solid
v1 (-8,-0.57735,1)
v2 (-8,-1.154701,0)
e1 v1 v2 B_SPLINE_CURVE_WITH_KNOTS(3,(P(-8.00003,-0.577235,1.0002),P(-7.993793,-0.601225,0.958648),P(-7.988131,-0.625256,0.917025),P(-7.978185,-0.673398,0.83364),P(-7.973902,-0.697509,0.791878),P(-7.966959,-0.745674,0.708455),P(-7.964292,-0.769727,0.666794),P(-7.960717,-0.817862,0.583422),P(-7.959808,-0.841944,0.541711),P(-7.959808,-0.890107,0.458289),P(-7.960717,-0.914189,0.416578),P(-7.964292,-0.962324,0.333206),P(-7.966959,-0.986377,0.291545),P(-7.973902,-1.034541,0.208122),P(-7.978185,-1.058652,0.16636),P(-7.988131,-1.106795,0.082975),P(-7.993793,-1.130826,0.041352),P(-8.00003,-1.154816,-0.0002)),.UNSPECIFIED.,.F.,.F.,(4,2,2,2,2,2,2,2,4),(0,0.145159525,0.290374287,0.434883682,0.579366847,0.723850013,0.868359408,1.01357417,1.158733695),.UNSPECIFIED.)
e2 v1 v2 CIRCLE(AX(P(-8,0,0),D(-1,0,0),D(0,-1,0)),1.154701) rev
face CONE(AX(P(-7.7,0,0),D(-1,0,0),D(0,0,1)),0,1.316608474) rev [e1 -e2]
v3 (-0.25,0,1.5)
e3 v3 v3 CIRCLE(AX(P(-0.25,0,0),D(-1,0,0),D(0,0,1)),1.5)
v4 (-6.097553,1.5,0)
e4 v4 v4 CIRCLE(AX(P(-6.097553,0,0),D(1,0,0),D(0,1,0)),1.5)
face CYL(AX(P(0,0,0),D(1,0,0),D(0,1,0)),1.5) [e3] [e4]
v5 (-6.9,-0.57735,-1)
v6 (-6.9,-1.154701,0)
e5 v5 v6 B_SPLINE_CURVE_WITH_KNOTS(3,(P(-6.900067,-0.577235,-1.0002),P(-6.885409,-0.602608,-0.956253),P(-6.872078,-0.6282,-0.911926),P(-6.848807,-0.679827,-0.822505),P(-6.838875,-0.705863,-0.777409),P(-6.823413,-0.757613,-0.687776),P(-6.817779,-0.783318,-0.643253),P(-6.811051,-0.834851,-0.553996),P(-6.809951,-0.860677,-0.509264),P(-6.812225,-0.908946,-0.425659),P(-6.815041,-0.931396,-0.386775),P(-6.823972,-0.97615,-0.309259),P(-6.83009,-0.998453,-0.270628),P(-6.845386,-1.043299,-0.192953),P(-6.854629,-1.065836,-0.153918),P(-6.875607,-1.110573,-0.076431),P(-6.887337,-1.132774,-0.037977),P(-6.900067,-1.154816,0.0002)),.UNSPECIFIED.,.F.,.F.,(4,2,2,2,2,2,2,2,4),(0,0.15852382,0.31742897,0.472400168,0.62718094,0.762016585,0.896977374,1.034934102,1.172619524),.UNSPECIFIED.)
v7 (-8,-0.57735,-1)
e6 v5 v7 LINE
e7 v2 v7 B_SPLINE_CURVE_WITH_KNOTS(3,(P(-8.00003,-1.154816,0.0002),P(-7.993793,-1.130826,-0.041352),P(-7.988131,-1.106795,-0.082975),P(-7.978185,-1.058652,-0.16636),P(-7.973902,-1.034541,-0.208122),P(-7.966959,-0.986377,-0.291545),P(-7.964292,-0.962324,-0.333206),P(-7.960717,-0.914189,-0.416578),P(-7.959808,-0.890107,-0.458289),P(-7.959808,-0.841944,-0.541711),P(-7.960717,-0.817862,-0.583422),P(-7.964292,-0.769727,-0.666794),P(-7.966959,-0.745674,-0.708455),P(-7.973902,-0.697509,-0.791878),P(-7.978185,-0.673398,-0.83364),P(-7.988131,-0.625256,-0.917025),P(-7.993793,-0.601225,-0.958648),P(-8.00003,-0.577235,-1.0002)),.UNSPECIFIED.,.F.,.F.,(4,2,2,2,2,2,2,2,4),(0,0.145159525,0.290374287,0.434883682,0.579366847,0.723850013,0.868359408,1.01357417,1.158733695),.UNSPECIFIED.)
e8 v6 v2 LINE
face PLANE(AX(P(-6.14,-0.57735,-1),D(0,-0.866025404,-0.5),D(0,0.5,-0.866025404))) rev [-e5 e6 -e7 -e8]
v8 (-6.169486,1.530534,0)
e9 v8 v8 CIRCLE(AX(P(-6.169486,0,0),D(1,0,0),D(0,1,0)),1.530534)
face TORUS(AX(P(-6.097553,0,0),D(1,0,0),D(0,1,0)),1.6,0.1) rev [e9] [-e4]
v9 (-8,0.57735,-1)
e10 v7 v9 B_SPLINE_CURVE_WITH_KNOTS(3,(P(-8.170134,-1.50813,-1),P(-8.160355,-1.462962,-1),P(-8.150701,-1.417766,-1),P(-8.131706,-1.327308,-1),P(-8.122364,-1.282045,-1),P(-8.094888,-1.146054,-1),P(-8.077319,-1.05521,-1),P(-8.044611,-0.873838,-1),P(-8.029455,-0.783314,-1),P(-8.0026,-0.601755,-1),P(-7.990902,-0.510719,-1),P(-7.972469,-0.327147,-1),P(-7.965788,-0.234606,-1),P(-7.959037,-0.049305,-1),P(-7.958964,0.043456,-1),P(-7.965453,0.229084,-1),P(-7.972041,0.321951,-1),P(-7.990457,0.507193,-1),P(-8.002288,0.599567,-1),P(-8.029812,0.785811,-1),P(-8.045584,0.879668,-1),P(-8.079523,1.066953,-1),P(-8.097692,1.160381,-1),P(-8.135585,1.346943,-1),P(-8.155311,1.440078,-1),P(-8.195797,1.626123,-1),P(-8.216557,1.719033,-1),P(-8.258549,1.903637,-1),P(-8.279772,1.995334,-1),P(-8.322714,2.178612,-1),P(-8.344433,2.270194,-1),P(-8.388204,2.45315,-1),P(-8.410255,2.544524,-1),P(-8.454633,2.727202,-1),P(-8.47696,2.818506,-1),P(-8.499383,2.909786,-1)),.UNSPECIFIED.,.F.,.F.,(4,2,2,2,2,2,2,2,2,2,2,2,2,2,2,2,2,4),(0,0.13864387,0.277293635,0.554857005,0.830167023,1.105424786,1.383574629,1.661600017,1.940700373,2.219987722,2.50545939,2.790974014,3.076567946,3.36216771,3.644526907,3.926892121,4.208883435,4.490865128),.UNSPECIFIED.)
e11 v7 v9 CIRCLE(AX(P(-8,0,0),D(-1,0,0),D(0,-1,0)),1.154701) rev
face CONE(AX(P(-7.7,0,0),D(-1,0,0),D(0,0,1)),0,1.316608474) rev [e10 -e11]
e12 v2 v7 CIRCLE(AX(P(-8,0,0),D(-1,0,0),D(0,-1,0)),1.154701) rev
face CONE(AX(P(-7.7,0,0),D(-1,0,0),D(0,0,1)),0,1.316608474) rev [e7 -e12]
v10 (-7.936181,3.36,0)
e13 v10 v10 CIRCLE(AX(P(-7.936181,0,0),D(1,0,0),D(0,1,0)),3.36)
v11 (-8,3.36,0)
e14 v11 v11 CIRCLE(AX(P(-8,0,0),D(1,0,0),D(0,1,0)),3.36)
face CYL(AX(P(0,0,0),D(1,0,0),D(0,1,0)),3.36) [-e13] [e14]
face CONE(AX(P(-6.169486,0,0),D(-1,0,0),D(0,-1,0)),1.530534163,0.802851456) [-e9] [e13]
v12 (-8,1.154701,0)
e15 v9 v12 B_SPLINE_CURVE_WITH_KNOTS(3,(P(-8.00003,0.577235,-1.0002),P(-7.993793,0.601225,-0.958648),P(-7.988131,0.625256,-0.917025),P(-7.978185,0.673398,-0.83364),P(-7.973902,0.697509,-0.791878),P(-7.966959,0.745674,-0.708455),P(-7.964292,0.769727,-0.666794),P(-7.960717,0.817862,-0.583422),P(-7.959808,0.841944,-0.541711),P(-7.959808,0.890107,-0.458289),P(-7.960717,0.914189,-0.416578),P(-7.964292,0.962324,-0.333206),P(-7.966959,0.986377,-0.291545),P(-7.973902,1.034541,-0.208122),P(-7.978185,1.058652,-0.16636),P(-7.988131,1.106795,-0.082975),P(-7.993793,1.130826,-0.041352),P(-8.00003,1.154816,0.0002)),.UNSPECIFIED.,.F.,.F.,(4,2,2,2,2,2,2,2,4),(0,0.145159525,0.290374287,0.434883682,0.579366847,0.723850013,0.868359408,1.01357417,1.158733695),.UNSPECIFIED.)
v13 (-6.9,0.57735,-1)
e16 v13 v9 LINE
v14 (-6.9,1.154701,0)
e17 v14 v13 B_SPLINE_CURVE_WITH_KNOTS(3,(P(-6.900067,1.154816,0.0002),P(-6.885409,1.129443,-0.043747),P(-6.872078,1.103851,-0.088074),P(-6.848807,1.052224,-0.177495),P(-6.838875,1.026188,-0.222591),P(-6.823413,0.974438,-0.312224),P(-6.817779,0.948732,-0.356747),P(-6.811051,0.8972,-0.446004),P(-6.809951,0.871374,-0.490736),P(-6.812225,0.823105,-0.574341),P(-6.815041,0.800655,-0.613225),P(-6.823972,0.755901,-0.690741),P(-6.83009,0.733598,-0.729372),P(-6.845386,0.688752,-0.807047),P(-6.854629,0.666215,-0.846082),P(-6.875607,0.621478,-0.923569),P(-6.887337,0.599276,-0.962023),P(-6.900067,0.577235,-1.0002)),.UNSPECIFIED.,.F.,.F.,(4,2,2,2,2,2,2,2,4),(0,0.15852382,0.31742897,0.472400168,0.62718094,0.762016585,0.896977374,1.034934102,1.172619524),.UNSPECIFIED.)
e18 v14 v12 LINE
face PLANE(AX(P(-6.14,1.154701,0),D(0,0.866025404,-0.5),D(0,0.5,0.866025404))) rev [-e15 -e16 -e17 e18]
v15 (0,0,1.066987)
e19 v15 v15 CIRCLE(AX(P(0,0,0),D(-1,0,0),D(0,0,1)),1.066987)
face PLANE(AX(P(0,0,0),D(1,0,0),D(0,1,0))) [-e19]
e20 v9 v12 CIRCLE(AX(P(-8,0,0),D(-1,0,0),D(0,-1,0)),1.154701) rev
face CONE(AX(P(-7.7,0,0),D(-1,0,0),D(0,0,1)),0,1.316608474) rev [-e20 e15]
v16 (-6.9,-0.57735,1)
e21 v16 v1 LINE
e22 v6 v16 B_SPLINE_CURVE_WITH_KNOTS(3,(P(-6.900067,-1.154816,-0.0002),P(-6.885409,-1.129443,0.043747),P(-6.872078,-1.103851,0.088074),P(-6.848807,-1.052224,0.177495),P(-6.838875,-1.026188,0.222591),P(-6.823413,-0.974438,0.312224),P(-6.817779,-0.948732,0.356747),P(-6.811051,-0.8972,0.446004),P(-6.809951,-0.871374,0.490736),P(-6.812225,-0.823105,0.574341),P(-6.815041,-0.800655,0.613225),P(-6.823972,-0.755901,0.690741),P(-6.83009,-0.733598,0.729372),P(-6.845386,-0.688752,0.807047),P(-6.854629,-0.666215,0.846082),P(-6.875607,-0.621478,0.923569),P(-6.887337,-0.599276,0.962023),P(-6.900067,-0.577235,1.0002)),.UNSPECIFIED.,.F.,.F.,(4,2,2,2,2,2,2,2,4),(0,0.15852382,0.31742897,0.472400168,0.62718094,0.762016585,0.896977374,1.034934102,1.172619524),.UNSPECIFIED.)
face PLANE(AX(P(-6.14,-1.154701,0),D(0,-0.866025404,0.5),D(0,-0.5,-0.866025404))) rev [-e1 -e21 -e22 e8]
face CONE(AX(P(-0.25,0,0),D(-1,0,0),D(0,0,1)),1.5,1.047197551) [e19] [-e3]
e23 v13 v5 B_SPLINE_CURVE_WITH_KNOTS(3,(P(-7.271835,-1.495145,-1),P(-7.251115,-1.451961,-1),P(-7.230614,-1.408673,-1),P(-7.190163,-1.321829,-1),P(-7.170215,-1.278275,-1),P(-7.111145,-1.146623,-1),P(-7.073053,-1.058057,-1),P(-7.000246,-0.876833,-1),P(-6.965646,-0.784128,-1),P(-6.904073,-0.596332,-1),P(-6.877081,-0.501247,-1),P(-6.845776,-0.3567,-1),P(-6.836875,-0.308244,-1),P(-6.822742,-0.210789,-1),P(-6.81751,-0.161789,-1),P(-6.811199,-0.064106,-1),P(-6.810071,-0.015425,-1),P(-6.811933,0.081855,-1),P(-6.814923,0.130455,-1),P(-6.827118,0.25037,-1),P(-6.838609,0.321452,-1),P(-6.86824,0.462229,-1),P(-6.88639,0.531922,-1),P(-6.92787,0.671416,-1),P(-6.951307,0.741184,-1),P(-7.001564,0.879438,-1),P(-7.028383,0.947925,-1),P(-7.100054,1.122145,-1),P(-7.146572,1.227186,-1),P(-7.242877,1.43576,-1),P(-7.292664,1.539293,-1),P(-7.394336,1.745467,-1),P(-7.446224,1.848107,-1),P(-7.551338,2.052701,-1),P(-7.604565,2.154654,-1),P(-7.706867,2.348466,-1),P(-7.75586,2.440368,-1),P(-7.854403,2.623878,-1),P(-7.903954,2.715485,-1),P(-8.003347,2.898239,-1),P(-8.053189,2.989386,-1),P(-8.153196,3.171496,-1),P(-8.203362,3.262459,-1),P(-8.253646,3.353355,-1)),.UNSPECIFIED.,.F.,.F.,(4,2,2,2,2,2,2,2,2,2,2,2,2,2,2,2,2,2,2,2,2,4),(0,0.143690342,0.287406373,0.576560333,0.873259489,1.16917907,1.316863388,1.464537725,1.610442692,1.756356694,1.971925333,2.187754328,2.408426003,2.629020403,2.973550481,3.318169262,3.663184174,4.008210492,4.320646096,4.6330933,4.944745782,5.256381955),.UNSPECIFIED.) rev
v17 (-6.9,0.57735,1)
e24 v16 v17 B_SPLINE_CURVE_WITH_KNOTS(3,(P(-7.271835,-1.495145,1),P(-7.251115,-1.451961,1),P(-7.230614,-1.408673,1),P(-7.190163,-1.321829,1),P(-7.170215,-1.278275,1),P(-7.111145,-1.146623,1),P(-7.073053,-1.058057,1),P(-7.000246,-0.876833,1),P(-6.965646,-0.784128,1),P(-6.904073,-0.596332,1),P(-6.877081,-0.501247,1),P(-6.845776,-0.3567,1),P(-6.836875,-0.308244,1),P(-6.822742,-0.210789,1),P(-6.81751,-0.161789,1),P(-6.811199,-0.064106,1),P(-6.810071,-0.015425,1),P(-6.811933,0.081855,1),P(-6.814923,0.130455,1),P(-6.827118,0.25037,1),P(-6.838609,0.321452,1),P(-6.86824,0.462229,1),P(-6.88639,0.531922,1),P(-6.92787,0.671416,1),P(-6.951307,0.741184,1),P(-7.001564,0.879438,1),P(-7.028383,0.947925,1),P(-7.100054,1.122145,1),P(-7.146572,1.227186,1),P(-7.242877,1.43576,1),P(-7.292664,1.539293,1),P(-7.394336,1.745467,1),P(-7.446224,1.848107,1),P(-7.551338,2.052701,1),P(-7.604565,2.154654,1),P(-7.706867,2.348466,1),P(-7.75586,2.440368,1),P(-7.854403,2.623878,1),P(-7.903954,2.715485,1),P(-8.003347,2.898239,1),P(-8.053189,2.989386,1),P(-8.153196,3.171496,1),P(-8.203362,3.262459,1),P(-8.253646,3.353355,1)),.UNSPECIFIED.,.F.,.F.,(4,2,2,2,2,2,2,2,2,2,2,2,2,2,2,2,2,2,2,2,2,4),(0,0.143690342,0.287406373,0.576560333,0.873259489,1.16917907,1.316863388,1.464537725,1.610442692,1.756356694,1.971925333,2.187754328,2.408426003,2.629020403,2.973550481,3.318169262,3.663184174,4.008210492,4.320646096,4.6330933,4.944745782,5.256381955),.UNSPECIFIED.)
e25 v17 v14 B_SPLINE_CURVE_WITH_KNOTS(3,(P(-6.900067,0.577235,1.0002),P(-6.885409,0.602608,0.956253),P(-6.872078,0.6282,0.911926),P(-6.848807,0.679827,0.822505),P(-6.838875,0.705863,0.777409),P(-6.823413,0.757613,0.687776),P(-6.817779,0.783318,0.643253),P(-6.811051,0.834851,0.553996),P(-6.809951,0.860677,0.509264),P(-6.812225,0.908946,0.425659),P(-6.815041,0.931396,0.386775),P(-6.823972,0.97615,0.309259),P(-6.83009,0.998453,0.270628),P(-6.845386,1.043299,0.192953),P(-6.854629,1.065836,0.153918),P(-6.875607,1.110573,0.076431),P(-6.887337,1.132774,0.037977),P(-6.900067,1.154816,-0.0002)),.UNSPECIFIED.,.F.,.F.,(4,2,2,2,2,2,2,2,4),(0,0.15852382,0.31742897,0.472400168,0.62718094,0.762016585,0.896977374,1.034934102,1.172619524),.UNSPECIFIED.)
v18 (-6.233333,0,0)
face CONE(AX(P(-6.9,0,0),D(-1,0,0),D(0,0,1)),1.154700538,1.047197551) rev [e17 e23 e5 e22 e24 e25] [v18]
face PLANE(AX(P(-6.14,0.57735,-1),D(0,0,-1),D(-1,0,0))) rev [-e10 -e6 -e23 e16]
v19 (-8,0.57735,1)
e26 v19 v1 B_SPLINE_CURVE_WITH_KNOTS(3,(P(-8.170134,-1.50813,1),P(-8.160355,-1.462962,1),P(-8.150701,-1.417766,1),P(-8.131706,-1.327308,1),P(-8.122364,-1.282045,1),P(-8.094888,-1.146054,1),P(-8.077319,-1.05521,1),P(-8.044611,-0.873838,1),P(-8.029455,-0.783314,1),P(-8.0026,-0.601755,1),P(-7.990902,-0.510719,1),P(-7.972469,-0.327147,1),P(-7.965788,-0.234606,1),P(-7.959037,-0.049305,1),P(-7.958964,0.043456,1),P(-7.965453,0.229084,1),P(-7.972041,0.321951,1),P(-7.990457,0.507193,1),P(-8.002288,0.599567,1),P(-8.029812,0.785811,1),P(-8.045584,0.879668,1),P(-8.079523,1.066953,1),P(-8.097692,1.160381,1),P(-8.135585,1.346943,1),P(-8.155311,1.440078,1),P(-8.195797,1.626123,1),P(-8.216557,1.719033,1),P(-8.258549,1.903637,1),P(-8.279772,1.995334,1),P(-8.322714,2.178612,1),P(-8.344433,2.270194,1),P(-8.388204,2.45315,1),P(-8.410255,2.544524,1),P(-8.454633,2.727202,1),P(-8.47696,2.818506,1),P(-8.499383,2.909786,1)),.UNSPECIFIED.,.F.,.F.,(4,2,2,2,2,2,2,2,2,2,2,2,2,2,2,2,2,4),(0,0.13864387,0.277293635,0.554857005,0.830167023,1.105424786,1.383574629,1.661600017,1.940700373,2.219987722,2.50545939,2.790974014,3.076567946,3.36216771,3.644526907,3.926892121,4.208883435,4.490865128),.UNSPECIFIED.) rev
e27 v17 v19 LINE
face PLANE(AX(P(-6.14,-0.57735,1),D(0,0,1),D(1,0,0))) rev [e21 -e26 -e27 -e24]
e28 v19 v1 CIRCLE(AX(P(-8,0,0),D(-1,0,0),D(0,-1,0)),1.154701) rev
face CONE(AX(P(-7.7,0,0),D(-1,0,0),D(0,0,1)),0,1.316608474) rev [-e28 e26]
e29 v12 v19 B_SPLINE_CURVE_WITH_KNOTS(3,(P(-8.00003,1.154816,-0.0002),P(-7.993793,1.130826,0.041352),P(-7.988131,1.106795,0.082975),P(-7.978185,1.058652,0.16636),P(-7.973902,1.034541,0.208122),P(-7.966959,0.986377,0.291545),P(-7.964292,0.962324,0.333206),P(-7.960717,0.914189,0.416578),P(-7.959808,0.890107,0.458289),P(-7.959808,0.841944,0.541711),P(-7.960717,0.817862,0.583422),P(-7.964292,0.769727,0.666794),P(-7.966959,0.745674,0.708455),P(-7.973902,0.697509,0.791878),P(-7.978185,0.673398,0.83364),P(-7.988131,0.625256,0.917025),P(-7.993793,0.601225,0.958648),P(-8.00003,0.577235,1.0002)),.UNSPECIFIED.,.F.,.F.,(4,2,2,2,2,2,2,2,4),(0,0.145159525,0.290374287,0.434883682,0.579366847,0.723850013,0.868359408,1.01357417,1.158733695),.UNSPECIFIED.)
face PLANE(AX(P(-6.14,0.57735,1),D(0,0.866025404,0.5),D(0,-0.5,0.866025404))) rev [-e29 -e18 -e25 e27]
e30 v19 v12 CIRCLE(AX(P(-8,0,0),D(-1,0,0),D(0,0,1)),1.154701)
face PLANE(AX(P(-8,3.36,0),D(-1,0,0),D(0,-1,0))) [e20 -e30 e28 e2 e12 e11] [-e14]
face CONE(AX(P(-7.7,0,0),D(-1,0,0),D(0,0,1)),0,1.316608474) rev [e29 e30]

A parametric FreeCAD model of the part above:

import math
import FreeCAD as App
import Part
import Sketcher
Q = App.Units.Quantity


def add_polygon(sketch, points):
    """Adds a closed chain of lines whose ends are joined by coincident constraints."""
    first, n = sketch.GeometryCount, len(points)
    for a, b in zip(points, points[1:] + points[:1]):
        sketch.addGeometry(Part.LineSegment(App.Vector(*a, 0), App.Vector(*b, 0)), False)
    for i in range(n):
        sketch.addConstraint(Sketcher.Constraint("Coincident", first + i, 2, first + (i + 1) % n, 1))

doc = App.newDocument("Part")
body = doc.addObject("PartDesign::Body", "Body")

sketch1 = body.newObject("Sketcher::SketchObject", "Sketch")
sketch1.AttachmentSupport = (doc.getObject("XY_Plane"), [""])
sketch1.MapMode = "FlatFace"
sketch1.addGeometry([
    Part.LineSegment(App.Vector(0, 1.5, 0), App.Vector(-6.1, 1.5, 0)),
    Part.ArcOfCircle(Part.Circle(App.Vector(-6.1, 1.6, 0), App.Vector(0, 0, 1), 0.1), math.radians(-136), math.radians(-90)),
    Part.LineSegment(App.Vector(-6.17, 1.53, 0), App.Vector(-7.94, 3.36, 0)),
    Part.LineSegment(App.Vector(-7.94, 3.36, 0), App.Vector(-8, 3.36, 0)),
    Part.LineSegment(App.Vector(-8, 3.36, 0), App.Vector(-8, 0, 0)),
    Part.LineSegment(App.Vector(-8, 0, 0), App.Vector(0, 0, 0)),
    Part.LineSegment(App.Vector(0, 0, 0), App.Vector(0, 1.5, 0)),
], False)
sketch1.addConstraint([
    Sketcher.Constraint("Tangent", 0, 2, 1, 2),
    Sketcher.Constraint("Tangent", 1, 1, 2, 1),
    Sketcher.Constraint("Coincident", 2, 2, 3, 1),
    Sketcher.Constraint("Coincident", 3, 2, 4, 1),
    Sketcher.Constraint("Coincident", 4, 2, 5, 1),
    Sketcher.Constraint("Coincident", 5, 2, 6, 1),
    Sketcher.Constraint("Coincident", 6, 2, 0, 1),
    Sketcher.Constraint("Horizontal", 0),
    Sketcher.Constraint("Horizontal", 3),
    Sketcher.Constraint("Vertical", 4),
    Sketcher.Constraint("Horizontal", 5),
    Sketcher.Constraint("Vertical", 6),
    Sketcher.Constraint("Coincident", 5, 2, -1, 1),
    Sketcher.Constraint("Radius", 1, 0.1),
    Sketcher.Constraint("DistanceX", 5, 1, 5, 2, 8.0),
    Sketcher.Constraint("Angle", 2, Q("134 deg")),
    Sketcher.Constraint("DistanceY", 6, 1, 6, 2, 1.5),
    Sketcher.Constraint("DistanceY", 4, 2, 4, 1, 3.36),
    Sketcher.Constraint("DistanceX", 3, 2, 3, 1, 0.063819),
])
revolution = body.newObject("PartDesign::Revolution", "Revolution")
revolution.Profile = sketch1
revolution.ReferenceAxis = (sketch1, ["H_Axis"])
revolution.Angle = 360

sketch2 = body.newObject("Sketcher::SketchObject", "Sketch001")
sketch2.AttachmentSupport = (doc.getObject("YZ_Plane"), [""])
sketch2.MapMode = "FlatFace"
sketch2.AttachmentOffset = App.Placement(App.Vector(0, 0, -8), App.Rotation())
add_polygon(sketch2, [(1.2, 0), (0.6, -1), (-0.6, -1), (-1.2, 0), (-0.6, 1), (0.6, 1)])
sketch2.addConstraint([
    Sketcher.Constraint("Horizontal", 1),
    Sketcher.Constraint("Horizontal", 4),
    Sketcher.Constraint("Symmetric", 0, 2, 3, 2, -1, 1),
    Sketcher.Constraint("Symmetric", 2, 2, 5, 2, -1, 1),
    Sketcher.Constraint("PointOnObject", 2, 2, -1),
    Sketcher.Constraint("Parallel", 2, 5),
    Sketcher.Constraint("Vertical", 1, 2, 3, 2),
    Sketcher.Constraint("Angle", 0, Q("-120 deg")),
    Sketcher.Constraint("DistanceY", 0, 2, -1, 1, 1.0),
    Sketcher.Constraint("DistanceX", 1, 2, 1, 1, 1.154701),
])
pocket1 = body.newObject("PartDesign::Pocket", "Pocket")
pocket1.Profile = sketch2
pocket1.Length = 1.86
pocket1.Reversed = True

sketch3 = body.newObject("Sketcher::SketchObject", "Sketch002")
sketch3.AttachmentSupport = (doc.getObject("XY_Plane"), [""])
sketch3.MapMode = "FlatFace"
add_polygon(sketch3, [(-6.9, 1.15), (-6.23, 0), (-5.84, 0), (-5.84, 1.15)])
sketch3.addConstraint([
    Sketcher.Constraint("Horizontal", 1),
    Sketcher.Constraint("Vertical", 2),
    Sketcher.Constraint("Horizontal", 3),
    Sketcher.Constraint("PointOnObject", 0, 2, -1),
    Sketcher.Constraint("Angle", 0, Q("-60 deg")),
    Sketcher.Constraint("DistanceX", 3, 2, 3, 1, 1.06),
    Sketcher.Constraint("DistanceX", 3, 2, -1, 1, 6.9),
    Sketcher.Constraint("DistanceY", 2, 1, 2, 2, 1.154701),
])
revolution2 = body.newObject("PartDesign::Revolution", "Revolution001")
revolution2.Profile = sketch3
revolution2.ReferenceAxis = (sketch3, ["H_Axis"])
revolution2.Angle = 360

sketch4 = body.newObject("Sketcher::SketchObject", "Sketch003")
sketch4.AttachmentSupport = (doc.getObject("XY_Plane"), [""])
sketch4.MapMode = "FlatFace"
add_polygon(sketch4, [(-8, 1.15), (-8, 0), (-7.7, 0)])
sketch4.addConstraint([
    Sketcher.Constraint("Vertical", 0),
    Sketcher.Constraint("Horizontal", 1),
    Sketcher.Constraint("PointOnObject", 0, 2, -1),
    Sketcher.Constraint("DistanceX", 1, 1, 1, 2, 0.3),
    Sketcher.Constraint("DistanceX", 0, 2, -1, 1, 8.0),
    Sketcher.Constraint("DistanceY", 0, 2, 0, 1, 1.154701),
])
groove = body.newObject("PartDesign::Groove", "Groove")
groove.Profile = sketch4
groove.ReferenceAxis = (sketch4, ["H_Axis"])
groove.Angle = 360

sketch5 = body.newObject("Sketcher::SketchObject", "Sketch004")
sketch5.AttachmentSupport = (doc.getObject("XY_Plane"), [""])
sketch5.MapMode = "FlatFace"
add_polygon(sketch5, [(-0.2, 1.5), (0, 1.1), (0.2, 1.5)])
sketch5.addConstraint([
    Sketcher.Constraint("Horizontal", 2),
    Sketcher.Constraint("PointOnObject", 0, 2, -2),
    Sketcher.Constraint("Equal", 0, 1),
    Sketcher.Constraint("Angle", 0, Q("-60 deg")),
    Sketcher.Constraint("DistanceX", 2, 2, 2, 1, 0.5),
    Sketcher.Constraint("DistanceY", -1, 1, 1, 2, 1.5),
])
groove2 = body.newObject("PartDesign::Groove", "Groove001")
groove2.Profile = sketch5
groove2.ReferenceAxis = (sketch5, ["H_Axis"])
groove2.Angle = 360

doc.recompute()
